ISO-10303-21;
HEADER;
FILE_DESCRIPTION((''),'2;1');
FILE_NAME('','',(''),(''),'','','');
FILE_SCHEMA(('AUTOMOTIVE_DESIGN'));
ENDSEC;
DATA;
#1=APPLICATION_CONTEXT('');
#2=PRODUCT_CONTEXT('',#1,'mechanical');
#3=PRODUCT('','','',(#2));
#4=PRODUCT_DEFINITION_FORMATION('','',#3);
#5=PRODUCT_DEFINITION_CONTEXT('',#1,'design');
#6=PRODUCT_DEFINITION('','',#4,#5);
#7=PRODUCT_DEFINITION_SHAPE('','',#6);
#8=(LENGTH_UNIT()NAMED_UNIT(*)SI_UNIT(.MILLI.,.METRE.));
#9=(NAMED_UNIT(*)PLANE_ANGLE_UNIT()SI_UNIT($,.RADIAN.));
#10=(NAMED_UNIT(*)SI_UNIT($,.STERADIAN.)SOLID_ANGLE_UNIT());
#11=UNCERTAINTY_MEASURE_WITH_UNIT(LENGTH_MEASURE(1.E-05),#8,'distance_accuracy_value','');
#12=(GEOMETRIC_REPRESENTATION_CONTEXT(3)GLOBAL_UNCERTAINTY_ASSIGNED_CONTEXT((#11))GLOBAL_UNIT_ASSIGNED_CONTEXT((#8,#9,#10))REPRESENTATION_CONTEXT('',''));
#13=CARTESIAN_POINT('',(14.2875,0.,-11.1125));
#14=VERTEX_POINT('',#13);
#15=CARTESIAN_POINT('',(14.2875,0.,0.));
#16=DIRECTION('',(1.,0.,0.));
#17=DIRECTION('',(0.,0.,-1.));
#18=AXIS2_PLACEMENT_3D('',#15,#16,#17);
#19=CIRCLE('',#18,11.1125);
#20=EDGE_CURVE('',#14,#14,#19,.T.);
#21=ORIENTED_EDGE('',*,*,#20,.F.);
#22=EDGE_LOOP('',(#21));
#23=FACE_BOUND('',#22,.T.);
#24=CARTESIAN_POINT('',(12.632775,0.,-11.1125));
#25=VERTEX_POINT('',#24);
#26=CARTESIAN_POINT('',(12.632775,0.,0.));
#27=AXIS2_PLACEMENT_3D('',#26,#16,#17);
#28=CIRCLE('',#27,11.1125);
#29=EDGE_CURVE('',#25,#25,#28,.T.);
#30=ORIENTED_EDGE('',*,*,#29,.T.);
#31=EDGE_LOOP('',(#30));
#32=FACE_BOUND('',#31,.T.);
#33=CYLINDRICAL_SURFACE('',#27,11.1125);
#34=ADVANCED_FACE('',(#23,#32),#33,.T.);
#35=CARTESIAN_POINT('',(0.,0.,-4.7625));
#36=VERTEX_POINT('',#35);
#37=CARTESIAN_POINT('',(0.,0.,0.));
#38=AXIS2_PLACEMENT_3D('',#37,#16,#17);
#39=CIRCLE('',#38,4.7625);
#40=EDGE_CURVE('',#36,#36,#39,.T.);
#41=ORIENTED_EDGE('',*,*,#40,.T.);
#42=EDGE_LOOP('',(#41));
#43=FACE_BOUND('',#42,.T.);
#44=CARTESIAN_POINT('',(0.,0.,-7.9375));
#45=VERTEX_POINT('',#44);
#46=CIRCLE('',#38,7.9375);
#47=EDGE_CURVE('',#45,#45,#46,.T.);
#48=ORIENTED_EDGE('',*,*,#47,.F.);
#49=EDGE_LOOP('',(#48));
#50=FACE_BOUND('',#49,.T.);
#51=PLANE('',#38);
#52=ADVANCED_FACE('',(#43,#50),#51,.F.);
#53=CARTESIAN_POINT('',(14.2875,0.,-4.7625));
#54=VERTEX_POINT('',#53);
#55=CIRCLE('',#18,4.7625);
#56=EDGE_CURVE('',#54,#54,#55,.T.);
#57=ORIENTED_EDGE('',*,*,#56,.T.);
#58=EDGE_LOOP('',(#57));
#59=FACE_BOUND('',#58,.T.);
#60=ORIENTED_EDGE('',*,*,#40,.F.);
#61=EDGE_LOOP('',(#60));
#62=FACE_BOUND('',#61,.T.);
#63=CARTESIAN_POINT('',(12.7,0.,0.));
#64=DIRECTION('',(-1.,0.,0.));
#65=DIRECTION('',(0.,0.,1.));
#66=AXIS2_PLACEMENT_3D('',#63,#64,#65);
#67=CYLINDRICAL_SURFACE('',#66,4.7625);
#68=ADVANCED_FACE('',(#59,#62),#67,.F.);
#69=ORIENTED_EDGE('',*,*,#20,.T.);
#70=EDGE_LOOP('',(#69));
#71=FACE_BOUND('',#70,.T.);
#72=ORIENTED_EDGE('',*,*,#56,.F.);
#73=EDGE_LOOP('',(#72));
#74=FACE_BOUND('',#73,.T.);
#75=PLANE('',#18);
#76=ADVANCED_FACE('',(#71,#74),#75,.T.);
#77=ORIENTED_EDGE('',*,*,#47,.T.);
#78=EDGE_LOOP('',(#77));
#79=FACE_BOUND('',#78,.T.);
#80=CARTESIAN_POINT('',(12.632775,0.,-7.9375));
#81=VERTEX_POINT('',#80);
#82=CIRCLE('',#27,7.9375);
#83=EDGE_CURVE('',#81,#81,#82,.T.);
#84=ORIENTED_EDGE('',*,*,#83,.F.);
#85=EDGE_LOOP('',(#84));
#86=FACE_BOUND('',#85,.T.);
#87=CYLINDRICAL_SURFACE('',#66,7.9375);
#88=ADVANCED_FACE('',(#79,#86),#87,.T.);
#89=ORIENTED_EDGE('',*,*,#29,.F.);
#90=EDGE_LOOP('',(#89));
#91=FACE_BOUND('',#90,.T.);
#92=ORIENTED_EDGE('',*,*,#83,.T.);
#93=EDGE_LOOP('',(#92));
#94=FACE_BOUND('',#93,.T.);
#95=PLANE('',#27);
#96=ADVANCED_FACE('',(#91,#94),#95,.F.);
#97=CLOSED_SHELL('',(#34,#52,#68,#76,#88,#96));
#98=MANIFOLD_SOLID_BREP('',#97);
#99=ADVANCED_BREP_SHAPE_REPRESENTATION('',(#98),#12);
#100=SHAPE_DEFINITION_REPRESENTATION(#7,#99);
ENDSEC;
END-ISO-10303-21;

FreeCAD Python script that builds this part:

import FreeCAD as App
import Part
import Sketcher
Q = App.Units.Quantity

doc = App.newDocument("Part")
body = doc.addObject("PartDesign::Body", "Body")

sketch1 = body.newObject("Sketcher::SketchObject", "Sketch")
sketch1.AttachmentSupport = (doc.getObject("YZ_Plane"), [""])
sketch1.MapMode = "FlatFace"
sketch1.addGeometry([
    Part.Circle(App.Vector(0, 0, 0), App.Vector(0, 0, 1), 7.9),
    Part.Circle(App.Vector(0, 0, 0), App.Vector(0, 0, 1), 4.8),
], False)
sketch1.addConstraint([
    Sketcher.Constraint("Coincident", 0, 3, -1, 1),
    Sketcher.Constraint("Coincident", 1, 3, -1, 1),
    Sketcher.Constraint("Diameter", 0, Q("0.625 in")),
    Sketcher.Constraint("Diameter", 1, Q("0.375 in")),
])
pad1 = body.newObject("PartDesign::Pad", "Pad")
pad1.Profile = sketch1
pad1.Length = Q("0.5 in")

sketch2 = body.newObject("Sketcher::SketchObject", "Sketch001")
sketch2.AttachmentSupport = (doc.getObject("YZ_Plane"), [""])
sketch2.MapMode = "FlatFace"
sketch2.AttachmentOffset = App.Placement(App.Vector(0, 0, 0.5 * 25.4), App.Rotation())
sketch2.addGeometry([
    Part.Circle(App.Vector(0, 0, 0), App.Vector(0, 0, 1), 11.1),
    Part.Circle(App.Vector(0, 0, 0), App.Vector(0, 0, 1), 4.8),
], False)
sketch2.addConstraint([
    Sketcher.Constraint("Coincident", 0, 3, -1, 1),
    Sketcher.Constraint("Coincident", 1, 3, -1, 1),
    Sketcher.Constraint("Diameter", 0, Q("0.875 in")),
    Sketcher.Constraint("Diameter", 1, Q("0.375 in")),
])
pad2 = body.newObject("PartDesign::Pad", "Pad001")
pad2.Profile = sketch2
pad2.Type = "TwoLengths"
pad2.Length = Q("0.0625 in")
pad2.Length2 = 0.067225

doc.recompute()
